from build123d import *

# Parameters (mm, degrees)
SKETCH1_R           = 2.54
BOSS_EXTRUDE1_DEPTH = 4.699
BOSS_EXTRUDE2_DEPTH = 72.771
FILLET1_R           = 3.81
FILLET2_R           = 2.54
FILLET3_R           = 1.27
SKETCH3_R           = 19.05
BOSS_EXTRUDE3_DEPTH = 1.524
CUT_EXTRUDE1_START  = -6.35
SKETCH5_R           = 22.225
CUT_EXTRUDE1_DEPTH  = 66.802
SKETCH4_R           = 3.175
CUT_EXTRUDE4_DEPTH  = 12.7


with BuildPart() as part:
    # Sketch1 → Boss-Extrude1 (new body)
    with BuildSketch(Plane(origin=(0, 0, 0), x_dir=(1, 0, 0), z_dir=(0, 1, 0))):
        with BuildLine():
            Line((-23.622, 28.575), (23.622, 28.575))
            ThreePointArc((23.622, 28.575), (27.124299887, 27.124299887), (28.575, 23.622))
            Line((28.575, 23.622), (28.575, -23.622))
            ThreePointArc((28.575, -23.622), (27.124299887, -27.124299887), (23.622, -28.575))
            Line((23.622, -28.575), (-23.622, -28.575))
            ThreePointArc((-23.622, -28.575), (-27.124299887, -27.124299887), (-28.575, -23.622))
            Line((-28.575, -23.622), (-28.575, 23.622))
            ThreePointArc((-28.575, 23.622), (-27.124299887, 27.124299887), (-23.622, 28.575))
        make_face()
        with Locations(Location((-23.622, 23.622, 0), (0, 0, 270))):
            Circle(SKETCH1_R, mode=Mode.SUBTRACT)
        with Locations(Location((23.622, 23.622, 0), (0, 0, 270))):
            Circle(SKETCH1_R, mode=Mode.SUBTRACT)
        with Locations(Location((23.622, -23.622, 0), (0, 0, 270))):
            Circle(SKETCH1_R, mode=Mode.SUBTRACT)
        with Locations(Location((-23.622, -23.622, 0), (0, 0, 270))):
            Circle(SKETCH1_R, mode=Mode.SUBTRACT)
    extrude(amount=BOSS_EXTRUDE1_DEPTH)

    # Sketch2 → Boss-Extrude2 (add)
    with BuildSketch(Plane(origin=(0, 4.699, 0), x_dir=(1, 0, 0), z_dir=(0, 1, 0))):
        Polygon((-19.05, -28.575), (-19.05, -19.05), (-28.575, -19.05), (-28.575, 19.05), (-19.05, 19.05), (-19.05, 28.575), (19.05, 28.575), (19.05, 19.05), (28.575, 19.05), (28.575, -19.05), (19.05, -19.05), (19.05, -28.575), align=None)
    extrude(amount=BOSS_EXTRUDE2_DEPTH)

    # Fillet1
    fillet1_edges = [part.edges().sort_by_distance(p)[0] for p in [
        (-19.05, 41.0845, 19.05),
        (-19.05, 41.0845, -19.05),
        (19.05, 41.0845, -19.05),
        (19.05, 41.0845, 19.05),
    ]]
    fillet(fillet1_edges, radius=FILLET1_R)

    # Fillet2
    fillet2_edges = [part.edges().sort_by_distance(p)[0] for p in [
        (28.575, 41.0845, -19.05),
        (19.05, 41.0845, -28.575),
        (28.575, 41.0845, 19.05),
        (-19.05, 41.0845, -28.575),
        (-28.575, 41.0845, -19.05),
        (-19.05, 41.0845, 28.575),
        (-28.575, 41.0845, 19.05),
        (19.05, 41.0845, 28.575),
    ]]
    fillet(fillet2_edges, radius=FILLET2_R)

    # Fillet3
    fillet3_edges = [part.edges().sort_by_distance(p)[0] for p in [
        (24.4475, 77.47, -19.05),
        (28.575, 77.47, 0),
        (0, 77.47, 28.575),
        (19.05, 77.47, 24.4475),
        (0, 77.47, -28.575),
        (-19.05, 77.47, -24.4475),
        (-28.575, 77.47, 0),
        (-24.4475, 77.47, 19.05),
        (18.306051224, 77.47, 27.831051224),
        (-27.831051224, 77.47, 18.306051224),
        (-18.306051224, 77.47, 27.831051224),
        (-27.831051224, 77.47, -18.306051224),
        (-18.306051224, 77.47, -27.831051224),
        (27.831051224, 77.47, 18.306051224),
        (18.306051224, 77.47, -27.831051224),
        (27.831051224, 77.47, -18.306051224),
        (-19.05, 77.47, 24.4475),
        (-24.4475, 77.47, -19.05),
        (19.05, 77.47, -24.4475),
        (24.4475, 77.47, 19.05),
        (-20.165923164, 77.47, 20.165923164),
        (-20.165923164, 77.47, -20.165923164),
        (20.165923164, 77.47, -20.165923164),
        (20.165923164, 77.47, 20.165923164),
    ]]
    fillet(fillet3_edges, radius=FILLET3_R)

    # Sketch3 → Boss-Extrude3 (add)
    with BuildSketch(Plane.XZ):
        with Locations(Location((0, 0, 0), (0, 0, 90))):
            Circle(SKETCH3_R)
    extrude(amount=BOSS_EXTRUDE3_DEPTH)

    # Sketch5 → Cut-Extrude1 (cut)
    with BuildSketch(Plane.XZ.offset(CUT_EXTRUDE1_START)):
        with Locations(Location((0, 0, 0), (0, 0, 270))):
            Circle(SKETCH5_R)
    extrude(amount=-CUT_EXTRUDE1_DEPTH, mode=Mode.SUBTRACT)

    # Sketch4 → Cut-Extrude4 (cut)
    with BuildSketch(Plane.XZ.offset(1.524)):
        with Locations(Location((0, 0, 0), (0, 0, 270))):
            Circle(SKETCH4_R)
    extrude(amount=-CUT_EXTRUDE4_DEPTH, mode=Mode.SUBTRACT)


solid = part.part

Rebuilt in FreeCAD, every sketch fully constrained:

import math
import FreeCAD as App
import Part
import Sketcher

V = App.Vector
Q = App.Units.Quantity


def edges_at(feature, points):
    """Names of the edges that pass closest to the given points."""
    edges = feature.Shape.Edges
    near = lambda p: min(range(len(edges)), key=lambda i: edges[i].distToShape(Part.Vertex(*p))[0])
    return sorted({f"Edge{near(p) + 1}" for p in points})

doc = App.newDocument("Part")
params = doc.addObject("Spreadsheet::Sheet", "Params")
for row, (alias, value) in enumerate([
    ("sketch1_diameter", "0.2 in"),
    ("sketch1_radius", "0.195 in"),
    ("sketch1_width", "1.86 in"),
    ("pad1_length", "0.185 in"),
    ("sketch2_width", "1.5 in"),
    ("sketch2_width2", "0.375 in"),
    ("pad2_length", "2.865 in"),
    ("fillet_radius", "0.15 in"),
    ("fillet2_radius", "0.1 in"),
    ("fillet3_radius", "0.05 in"),
    ("sketch3_diameter", "1.5 in"),
    ("pad3_length", "0.06 in"),
    ("sketch4_diameter", "1.75 in"),
    ("pocket1_length", "2.63 in"),
    ("sketch5_diameter", "0.25 in"),
    ("pocket2_length", "0.5 in"),
], start=1):
    params.set(f"A{row}", alias)
    params.set(f"B{row}", "=" + value)
    params.setAlias(f"B{row}", alias)

body = doc.addObject("PartDesign::Body", "Body")

# Sketch on XZ plane
sketch1 = body.newObject("Sketcher::SketchObject", "Sketch")
sketch1.AttachmentSupport = (doc.getObject("XZ_Plane"), [""])
sketch1.MapMode = "FlatFace"
sketch1.addGeometry([
    Part.LineSegment(V(23.6, -28.6, 0), V(-23.6, -28.6, 0)),  # 0
    Part.ArcOfCircle(Part.Circle(V(-23.6, -23.6, 0), V(0, 0, 1), 5), math.radians(-180), math.radians(-90)),  # 1
    Part.LineSegment(V(-28.6, -23.6, 0), V(-28.6, 23.6, 0)),  # 2
    Part.ArcOfCircle(Part.Circle(V(-23.6, 23.6, 0), V(0, 0, 1), 5), math.radians(90), math.radians(180)),  # 3
    Part.LineSegment(V(-23.6, 28.6, 0), V(23.6, 28.6, 0)),  # 4
    Part.ArcOfCircle(Part.Circle(V(23.6, 23.6, 0), V(0, 0, 1), 5), math.radians(0), math.radians(90)),  # 5
    Part.LineSegment(V(28.6, 23.6, 0), V(28.6, -23.6, 0)),  # 6
    Part.ArcOfCircle(Part.Circle(V(23.6, -23.6, 0), V(0, 0, 1), 5), math.radians(-90), math.radians(0)),  # 7
    Part.Circle(V(23.6, 23.6, 0), V(0, 0, 1), 2.5),  # 8
    Part.Circle(V(-23.6, 23.6, 0), V(0, 0, 1), 2.5),  # 9
    Part.Circle(V(23.6, -23.6, 0), V(0, 0, 1), 2.5),  # 10
    Part.Circle(V(-23.6, -23.6, 0), V(0, 0, 1), 2.5),  # 11
], False)
sketch1.addConstraint([
    Sketcher.Constraint("Tangent", 0, 2, 1, 2),
    Sketcher.Constraint("Tangent", 1, 1, 2, 1),
    Sketcher.Constraint("Tangent", 2, 2, 3, 2),
    Sketcher.Constraint("Tangent", 3, 1, 4, 1),
    Sketcher.Constraint("Tangent", 4, 2, 5, 2),
    Sketcher.Constraint("Tangent", 5, 1, 6, 1),
    Sketcher.Constraint("Tangent", 6, 2, 7, 2),
    Sketcher.Constraint("Tangent", 7, 1, 0, 1),
    Sketcher.Constraint("Horizontal", 0),
    Sketcher.Constraint("Vertical", 2),
    Sketcher.Constraint("Horizontal", 4),
    Sketcher.Constraint("Vertical", 6),
    Sketcher.Constraint("Coincident", 8, 3, 5, 3),
    Sketcher.Constraint("Coincident", 9, 3, 3, 3),
    Sketcher.Constraint("Coincident", 10, 3, 7, 3),
    Sketcher.Constraint("Coincident", 11, 3, 1, 3),
    Sketcher.Constraint("Equal", 1, 3),
    Sketcher.Constraint("Equal", 3, 5),
    Sketcher.Constraint("Equal", 5, 7),
    Sketcher.Constraint("Equal", 8, 9),
    Sketcher.Constraint("Equal", 9, 10),
    Sketcher.Constraint("Equal", 10, 11),
    Sketcher.Constraint("Symmetric", 1, 3, 5, 3, -1, 1),
    Sketcher.Constraint("Equal", 4, 2),
    Sketcher.Constraint("Diameter", 8, Q("0.2 in")),
    Sketcher.Constraint("Radius", 1, Q("0.195 in")),
    Sketcher.Constraint("DistanceX", 0, 2, 0, 1, Q("1.86 in")),
])
sketch1.setExpression("Constraints[24]", "Params.sketch1_diameter")
sketch1.setExpression("Constraints[25]", "Params.sketch1_radius")
sketch1.setExpression("Constraints[26]", "Params.sketch1_width")
pad1 = body.newObject("PartDesign::Pad", "Pad")
pad1.Profile = sketch1
pad1.setExpression("Length", "Params.pad1_length")
pad1.Reversed = True

# Sketch on XZ plane
sketch2 = body.newObject("Sketcher::SketchObject", "Sketch001")
sketch2.AttachmentSupport = (doc.getObject("XZ_Plane"), [""])
sketch2.MapMode = "FlatFace"
sketch2.AttachmentOffset = App.Placement(V(0, 0, -0.185 * 25.4), App.Rotation())
sketch2.addGeometry([
    Part.LineSegment(V(-19, 19, 0), V(-19, 29, 0)),  # 0
    Part.LineSegment(V(-19, 29, 0), V(19, 29, 0)),  # 1
    Part.LineSegment(V(19, 29, 0), V(19, 19, 0)),  # 2
    Part.LineSegment(V(19, 19, 0), V(29, 19, 0)),  # 3
    Part.LineSegment(V(29, 19, 0), V(29, -19, 0)),  # 4
    Part.LineSegment(V(29, -19, 0), V(19, -19, 0)),  # 5
    Part.LineSegment(V(19, -19, 0), V(19, -29, 0)),  # 6
    Part.LineSegment(V(19, -29, 0), V(-19, -29, 0)),  # 7
    Part.LineSegment(V(-19, -29, 0), V(-19, -19, 0)),  # 8
    Part.LineSegment(V(-19, -19, 0), V(-29, -19, 0)),  # 9
    Part.LineSegment(V(-29, -19, 0), V(-29, 19, 0)),  # 10
    Part.LineSegment(V(-29, 19, 0), V(-19, 19, 0)),  # 11
], False)
sketch2.addConstraint([
    Sketcher.Constraint("Coincident", 0, 2, 1, 1),
    Sketcher.Constraint("Coincident", 1, 2, 2, 1),
    Sketcher.Constraint("Coincident", 2, 2, 3, 1),
    Sketcher.Constraint("Coincident", 3, 2, 4, 1),
    Sketcher.Constraint("Coincident", 4, 2, 5, 1),
    Sketcher.Constraint("Coincident", 5, 2, 6, 1),
    Sketcher.Constraint("Coincident", 6, 2, 7, 1),
    Sketcher.Constraint("Coincident", 7, 2, 8, 1),
    Sketcher.Constraint("Coincident", 8, 2, 9, 1),
    Sketcher.Constraint("Coincident", 9, 2, 10, 1),
    Sketcher.Constraint("Coincident", 10, 2, 11, 1),
    Sketcher.Constraint("Coincident", 11, 2, 0, 1),
    Sketcher.Constraint("Vertical", 0),
    Sketcher.Constraint("Horizontal", 1),
    Sketcher.Constraint("Vertical", 2),
    Sketcher.Constraint("Horizontal", 3),
    Sketcher.Constraint("Vertical", 4),
    Sketcher.Constraint("Horizontal", 5),
    Sketcher.Constraint("Vertical", 6),
    Sketcher.Constraint("Horizontal", 7),
    Sketcher.Constraint("Vertical", 8),
    Sketcher.Constraint("Horizontal", 9),
    Sketcher.Constraint("Vertical", 10),
    Sketcher.Constraint("Horizontal", 11),
    Sketcher.Constraint("Symmetric", 0, 2, 6, 2, -1, 1),
    Sketcher.Constraint("Symmetric", 2, 2, 8, 2, -1, 1),
    Sketcher.Constraint("Symmetric", 4, 2, 10, 2, -1, 1),
    Sketcher.Constraint("Symmetric", 5, 2, 8, 2, -2),
    Sketcher.Constraint("Equal", 11, 0),
    Sketcher.Constraint("Equal", 7, 4),
    Sketcher.Constraint("DistanceX", 1, 1, 1, 2, Q("1.5 in")),
    Sketcher.Constraint("DistanceX", 3, 1, 3, 2, Q("0.375 in")),
])
sketch2.setExpression("Constraints[30]", "Params.sketch2_width")
sketch2.setExpression("Constraints[31]", "Params.sketch2_width2")
pad2 = body.newObject("PartDesign::Pad", "Pad001")
pad2.Profile = sketch2
pad2.setExpression("Length", "Params.pad2_length")
pad2.Reversed = True
doc.recompute()

fillet = body.newObject("PartDesign::Fillet", "Fillet")
fillet.Base = (pad2, edges_at(pad2, [
    (-19.05, 41.084, 19.05),
    (-19.05, 41.084, -19.05),
    (19.05, 41.084, -19.05),
    (19.05, 41.084, 19.05),
]))
fillet.setExpression("Radius", "Params.fillet_radius")
doc.recompute()

fillet2 = body.newObject("PartDesign::Fillet", "Fillet001")
fillet2.Base = (fillet, edges_at(fillet, [
    (28.575, 41.084, -19.05),
    (19.05, 41.084, -28.575),
    (28.575, 41.084, 19.05),
    (-19.05, 41.084, -28.575),
    (-28.575, 41.084, -19.05),
    (-19.05, 41.084, 28.575),
    (-28.575, 41.084, 19.05),
    (19.05, 41.084, 28.575),
]))
fillet2.setExpression("Radius", "Params.fillet2_radius")
doc.recompute()

fillet3 = body.newObject("PartDesign::Fillet", "Fillet002")
fillet3.Base = (fillet2, edges_at(fillet2, [
    (24.448, 77.47, -19.05),
    (28.575, 77.47, 0),
    (0, 77.47, 28.575),
    (19.05, 77.47, 24.448),
    (0, 77.47, -28.575),
    (-19.05, 77.47, -24.448),
    (-28.575, 77.47, 0),
    (-24.448, 77.47, 19.05),
    (18.306, 77.47, 27.831),
    (-27.831, 77.47, 18.306),
    (-18.306, 77.47, 27.831),
    (-27.831, 77.47, -18.306),
    (-18.306, 77.47, -27.831),
    (27.831, 77.47, 18.306),
    (18.306, 77.47, -27.831),
    (27.831, 77.47, -18.306),
    (-19.05, 77.47, 24.448),
    (-24.448, 77.47, -19.05),
    (19.05, 77.47, -24.448),
    (24.448, 77.47, 19.05),
    (-20.166, 77.47, 20.166),
    (-20.166, 77.47, -20.166),
    (20.166, 77.47, -20.166),
    (20.166, 77.47, 20.166),
]))
fillet3.setExpression("Radius", "Params.fillet3_radius")

# Sketch on XZ plane
sketch3 = body.newObject("Sketcher::SketchObject", "Sketch002")
sketch3.AttachmentSupport = (doc.getObject("XZ_Plane"), [""])
sketch3.MapMode = "FlatFace"
sketch3.addGeometry(Part.Circle(V(0, 0, 0), V(0, 0, 1), 19), False)
sketch3.addConstraint([
    Sketcher.Constraint("Coincident", 0, 3, -1, 1),
    Sketcher.Constraint("Diameter", 0, Q("1.5 in")),
])
sketch3.setExpression("Constraints[1]", "Params.sketch3_diameter")
pad3 = body.newObject("PartDesign::Pad", "Pad002")
pad3.Profile = sketch3
pad3.setExpression("Length", "Params.pad3_length")

# Sketch on XZ plane
sketch4 = body.newObject("Sketcher::SketchObject", "Sketch003")
sketch4.AttachmentSupport = (doc.getObject("XZ_Plane"), [""])
sketch4.MapMode = "FlatFace"
sketch4.AttachmentOffset = App.Placement(V(0, 0, -0.25 * 25.4), App.Rotation())
sketch4.addGeometry(Part.Circle(V(0, 0, 0), V(0, 0, 1), 22), False)
sketch4.addConstraint([
    Sketcher.Constraint("Coincident", 0, 3, -1, 1),
    Sketcher.Constraint("Diameter", 0, Q("1.75 in")),
])
sketch4.setExpression("Constraints[1]", "Params.sketch4_diameter")
pocket1 = body.newObject("PartDesign::Pocket", "Pocket")
pocket1.Profile = sketch4
pocket1.setExpression("Length", "Params.pocket1_length")

# Sketch on XZ plane
sketch5 = body.newObject("Sketcher::SketchObject", "Sketch004")
sketch5.AttachmentSupport = (doc.getObject("XZ_Plane"), [""])
sketch5.MapMode = "FlatFace"
sketch5.AttachmentOffset = App.Placement(V(0, 0, 0.06 * 25.4), App.Rotation())
sketch5.addGeometry(Part.Circle(V(0, 0, 0), V(0, 0, 1), 3.2), False)
sketch5.addConstraint([
    Sketcher.Constraint("Coincident", 0, 3, -1, 1),
    Sketcher.Constraint("Diameter", 0, Q("0.25 in")),
])
sketch5.setExpression("Constraints[1]", "Params.sketch5_diameter")
pocket2 = body.newObject("PartDesign::Pocket", "Pocket001")
pocket2.Profile = sketch5
pocket2.setExpression("Length", "Params.pocket2_length")

doc.recompute()
